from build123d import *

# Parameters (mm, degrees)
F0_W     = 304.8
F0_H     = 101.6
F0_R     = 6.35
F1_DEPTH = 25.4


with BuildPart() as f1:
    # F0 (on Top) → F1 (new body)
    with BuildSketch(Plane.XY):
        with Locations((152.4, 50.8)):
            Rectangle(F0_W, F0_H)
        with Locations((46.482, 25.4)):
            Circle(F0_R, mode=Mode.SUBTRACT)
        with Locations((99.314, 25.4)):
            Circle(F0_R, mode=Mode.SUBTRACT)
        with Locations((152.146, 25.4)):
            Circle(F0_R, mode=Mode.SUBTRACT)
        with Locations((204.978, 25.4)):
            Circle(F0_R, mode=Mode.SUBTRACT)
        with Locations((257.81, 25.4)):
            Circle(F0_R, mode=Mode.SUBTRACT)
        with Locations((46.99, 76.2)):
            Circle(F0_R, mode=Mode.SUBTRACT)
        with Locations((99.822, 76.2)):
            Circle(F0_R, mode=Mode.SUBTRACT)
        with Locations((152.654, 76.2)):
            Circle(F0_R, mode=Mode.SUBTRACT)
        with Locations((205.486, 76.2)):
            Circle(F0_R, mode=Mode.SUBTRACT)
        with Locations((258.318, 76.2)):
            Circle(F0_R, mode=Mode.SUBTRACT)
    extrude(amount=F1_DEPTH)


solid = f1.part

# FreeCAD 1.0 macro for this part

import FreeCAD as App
import Part
import Sketcher

V = App.Vector
Q = App.Units.Quantity


def add_polygon(sketch, points):
    """Adds a closed chain of lines whose ends are joined by coincident constraints."""
    first, n = sketch.GeometryCount, len(points)
    for a, b in zip(points, points[1:] + points[:1]):
        sketch.addGeometry(Part.LineSegment(App.Vector(*a, 0), App.Vector(*b, 0)), False)
    for i in range(n):
        sketch.addConstraint(Sketcher.Constraint("Coincident", first + i, 2, first + (i + 1) % n, 1))

doc = App.newDocument("Part")
params = doc.addObject("Spreadsheet::Sheet", "Params")
for row, (alias, value) in enumerate([
    ("sketch1_diameter", "0.5 in"),
    ("sketch1_width", "12 in"),
    ("sketch1_height", "4 in"),
    ("pad1_length", "1 in"),
], start=1):
    params.set(f"A{row}", alias)
    params.set(f"B{row}", "=" + value)
    params.setAlias(f"B{row}", alias)

body = doc.addObject("PartDesign::Body", "Body")

# Sketch on XY plane
sketch1 = body.newObject("Sketcher::SketchObject", "Sketch")
sketch1.AttachmentSupport = (doc.getObject("XY_Plane"), [""])
sketch1.MapMode = "FlatFace"
add_polygon(sketch1, [(0, 102), (0, 0), (305, 0), (305, 102)])  # lines 0-3
sketch1.addGeometry(Part.Circle(V(46, 25, 0), V(0, 0, 1), 6), False)  # 4
sketch1.addGeometry(Part.Circle(V(99, 25, 0), V(0, 0, 1), 6), False)  # 5
sketch1.addGeometry(Part.Circle(V(152, 25, 0), V(0, 0, 1), 6), False)  # 6
sketch1.addGeometry(Part.Circle(V(205, 25, 0), V(0, 0, 1), 6), False)  # 7
sketch1.addGeometry(Part.Circle(V(258, 25, 0), V(0, 0, 1), 6), False)  # 8
sketch1.addGeometry(Part.Circle(V(47, 76, 0), V(0, 0, 1), 6), False)  # 9
sketch1.addGeometry(Part.Circle(V(100, 76, 0), V(0, 0, 1), 6), False)  # 10
sketch1.addGeometry(Part.Circle(V(153, 76, 0), V(0, 0, 1), 6), False)  # 11
sketch1.addGeometry(Part.Circle(V(205, 76, 0), V(0, 0, 1), 6), False)  # 12
sketch1.addGeometry(Part.Circle(V(258, 76, 0), V(0, 0, 1), 6), False)  # 13
sketch1.addConstraint(Sketcher.Constraint("Vertical", 0))
sketch1.addConstraint(Sketcher.Constraint("Horizontal", 1))
sketch1.addConstraint(Sketcher.Constraint("Vertical", 2))
sketch1.addConstraint(Sketcher.Constraint("Horizontal", 3))
sketch1.addConstraint(Sketcher.Constraint("Coincident", 0, 2, -1, 1))
sketch1.addConstraint(Sketcher.Constraint("Equal", 4, 5))
sketch1.addConstraint(Sketcher.Constraint("Equal", 5, 6))
sketch1.addConstraint(Sketcher.Constraint("Equal", 6, 7))
sketch1.addConstraint(Sketcher.Constraint("Equal", 7, 8))
sketch1.addConstraint(Sketcher.Constraint("Equal", 8, 9))
sketch1.addConstraint(Sketcher.Constraint("Equal", 9, 10))
sketch1.addConstraint(Sketcher.Constraint("Equal", 10, 11))
sketch1.addConstraint(Sketcher.Constraint("Equal", 11, 12))
sketch1.addConstraint(Sketcher.Constraint("Equal", 12, 13))
sketch1.addConstraint(Sketcher.Constraint("Horizontal", 4, 3, 5, 3))
sketch1.addConstraint(Sketcher.Constraint("Horizontal", 5, 3, 6, 3))
sketch1.addConstraint(Sketcher.Constraint("Horizontal", 6, 3, 7, 3))
sketch1.addConstraint(Sketcher.Constraint("Horizontal", 7, 3, 8, 3))
sketch1.addConstraint(Sketcher.Constraint("Horizontal", 9, 3, 10, 3))
sketch1.addConstraint(Sketcher.Constraint("Horizontal", 10, 3, 11, 3))
sketch1.addConstraint(Sketcher.Constraint("Horizontal", 11, 3, 12, 3))
sketch1.addConstraint(Sketcher.Constraint("Horizontal", 12, 3, 13, 3))
sketch1.addConstraint(Sketcher.Constraint("Diameter", 4, Q("0.5 in")))
sketch1.addConstraint(Sketcher.Constraint("DistanceX", 1, 1, 1, 2, Q("12 in")))
sketch1.addConstraint(Sketcher.Constraint("DistanceY", 0, 2, 0, 1, Q("4 in")))
sketch1.addConstraint(Sketcher.Constraint("DistanceY", -1, 1, 4, 3, Q("1 in")))
sketch1.addConstraint(Sketcher.Constraint("DistanceY", -1, 1, 9, 3, Q("3 in")))
sketch1.addConstraint(Sketcher.Constraint("DistanceX", 9, 3, 8, 3, Q("8.3 in")))
sketch1.addConstraint(Sketcher.Constraint("DistanceX", 4, 3, 10, 3, Q("2.1 in")))
sketch1.addConstraint(Sketcher.Constraint("DistanceX", 5, 3, 11, 3, Q("2.1 in")))
sketch1.addConstraint(Sketcher.Constraint("DistanceX", 6, 3, 12, 3, Q("2.1 in")))
sketch1.addConstraint(Sketcher.Constraint("DistanceX", 7, 3, 13, 3, Q("2.1 in")))
sketch1.addConstraint(Sketcher.Constraint("DistanceX", -1, 1, 4, 3, Q("1.83 in")))
sketch1.addConstraint(Sketcher.Constraint("DistanceX", -1, 1, 5, 3, Q("3.91 in")))
sketch1.addConstraint(Sketcher.Constraint("DistanceX", -1, 1, 6, 3, Q("5.99 in")))
sketch1.addConstraint(Sketcher.Constraint("DistanceX", -1, 1, 7, 3, Q("8.07 in")))
sketch1.addConstraint(Sketcher.Constraint("DistanceX", -1, 1, 8, 3, Q("10.15 in")))
sketch1.setExpression("Constraints[26]", "Params.sketch1_diameter")
sketch1.setExpression("Constraints[27]", "Params.sketch1_width")
sketch1.setExpression("Constraints[28]", "Params.sketch1_height")
pad1 = body.newObject("PartDesign::Pad", "Pad")
pad1.Profile = sketch1
pad1.setExpression("Length", "Params.pad1_length")

doc.recompute()
